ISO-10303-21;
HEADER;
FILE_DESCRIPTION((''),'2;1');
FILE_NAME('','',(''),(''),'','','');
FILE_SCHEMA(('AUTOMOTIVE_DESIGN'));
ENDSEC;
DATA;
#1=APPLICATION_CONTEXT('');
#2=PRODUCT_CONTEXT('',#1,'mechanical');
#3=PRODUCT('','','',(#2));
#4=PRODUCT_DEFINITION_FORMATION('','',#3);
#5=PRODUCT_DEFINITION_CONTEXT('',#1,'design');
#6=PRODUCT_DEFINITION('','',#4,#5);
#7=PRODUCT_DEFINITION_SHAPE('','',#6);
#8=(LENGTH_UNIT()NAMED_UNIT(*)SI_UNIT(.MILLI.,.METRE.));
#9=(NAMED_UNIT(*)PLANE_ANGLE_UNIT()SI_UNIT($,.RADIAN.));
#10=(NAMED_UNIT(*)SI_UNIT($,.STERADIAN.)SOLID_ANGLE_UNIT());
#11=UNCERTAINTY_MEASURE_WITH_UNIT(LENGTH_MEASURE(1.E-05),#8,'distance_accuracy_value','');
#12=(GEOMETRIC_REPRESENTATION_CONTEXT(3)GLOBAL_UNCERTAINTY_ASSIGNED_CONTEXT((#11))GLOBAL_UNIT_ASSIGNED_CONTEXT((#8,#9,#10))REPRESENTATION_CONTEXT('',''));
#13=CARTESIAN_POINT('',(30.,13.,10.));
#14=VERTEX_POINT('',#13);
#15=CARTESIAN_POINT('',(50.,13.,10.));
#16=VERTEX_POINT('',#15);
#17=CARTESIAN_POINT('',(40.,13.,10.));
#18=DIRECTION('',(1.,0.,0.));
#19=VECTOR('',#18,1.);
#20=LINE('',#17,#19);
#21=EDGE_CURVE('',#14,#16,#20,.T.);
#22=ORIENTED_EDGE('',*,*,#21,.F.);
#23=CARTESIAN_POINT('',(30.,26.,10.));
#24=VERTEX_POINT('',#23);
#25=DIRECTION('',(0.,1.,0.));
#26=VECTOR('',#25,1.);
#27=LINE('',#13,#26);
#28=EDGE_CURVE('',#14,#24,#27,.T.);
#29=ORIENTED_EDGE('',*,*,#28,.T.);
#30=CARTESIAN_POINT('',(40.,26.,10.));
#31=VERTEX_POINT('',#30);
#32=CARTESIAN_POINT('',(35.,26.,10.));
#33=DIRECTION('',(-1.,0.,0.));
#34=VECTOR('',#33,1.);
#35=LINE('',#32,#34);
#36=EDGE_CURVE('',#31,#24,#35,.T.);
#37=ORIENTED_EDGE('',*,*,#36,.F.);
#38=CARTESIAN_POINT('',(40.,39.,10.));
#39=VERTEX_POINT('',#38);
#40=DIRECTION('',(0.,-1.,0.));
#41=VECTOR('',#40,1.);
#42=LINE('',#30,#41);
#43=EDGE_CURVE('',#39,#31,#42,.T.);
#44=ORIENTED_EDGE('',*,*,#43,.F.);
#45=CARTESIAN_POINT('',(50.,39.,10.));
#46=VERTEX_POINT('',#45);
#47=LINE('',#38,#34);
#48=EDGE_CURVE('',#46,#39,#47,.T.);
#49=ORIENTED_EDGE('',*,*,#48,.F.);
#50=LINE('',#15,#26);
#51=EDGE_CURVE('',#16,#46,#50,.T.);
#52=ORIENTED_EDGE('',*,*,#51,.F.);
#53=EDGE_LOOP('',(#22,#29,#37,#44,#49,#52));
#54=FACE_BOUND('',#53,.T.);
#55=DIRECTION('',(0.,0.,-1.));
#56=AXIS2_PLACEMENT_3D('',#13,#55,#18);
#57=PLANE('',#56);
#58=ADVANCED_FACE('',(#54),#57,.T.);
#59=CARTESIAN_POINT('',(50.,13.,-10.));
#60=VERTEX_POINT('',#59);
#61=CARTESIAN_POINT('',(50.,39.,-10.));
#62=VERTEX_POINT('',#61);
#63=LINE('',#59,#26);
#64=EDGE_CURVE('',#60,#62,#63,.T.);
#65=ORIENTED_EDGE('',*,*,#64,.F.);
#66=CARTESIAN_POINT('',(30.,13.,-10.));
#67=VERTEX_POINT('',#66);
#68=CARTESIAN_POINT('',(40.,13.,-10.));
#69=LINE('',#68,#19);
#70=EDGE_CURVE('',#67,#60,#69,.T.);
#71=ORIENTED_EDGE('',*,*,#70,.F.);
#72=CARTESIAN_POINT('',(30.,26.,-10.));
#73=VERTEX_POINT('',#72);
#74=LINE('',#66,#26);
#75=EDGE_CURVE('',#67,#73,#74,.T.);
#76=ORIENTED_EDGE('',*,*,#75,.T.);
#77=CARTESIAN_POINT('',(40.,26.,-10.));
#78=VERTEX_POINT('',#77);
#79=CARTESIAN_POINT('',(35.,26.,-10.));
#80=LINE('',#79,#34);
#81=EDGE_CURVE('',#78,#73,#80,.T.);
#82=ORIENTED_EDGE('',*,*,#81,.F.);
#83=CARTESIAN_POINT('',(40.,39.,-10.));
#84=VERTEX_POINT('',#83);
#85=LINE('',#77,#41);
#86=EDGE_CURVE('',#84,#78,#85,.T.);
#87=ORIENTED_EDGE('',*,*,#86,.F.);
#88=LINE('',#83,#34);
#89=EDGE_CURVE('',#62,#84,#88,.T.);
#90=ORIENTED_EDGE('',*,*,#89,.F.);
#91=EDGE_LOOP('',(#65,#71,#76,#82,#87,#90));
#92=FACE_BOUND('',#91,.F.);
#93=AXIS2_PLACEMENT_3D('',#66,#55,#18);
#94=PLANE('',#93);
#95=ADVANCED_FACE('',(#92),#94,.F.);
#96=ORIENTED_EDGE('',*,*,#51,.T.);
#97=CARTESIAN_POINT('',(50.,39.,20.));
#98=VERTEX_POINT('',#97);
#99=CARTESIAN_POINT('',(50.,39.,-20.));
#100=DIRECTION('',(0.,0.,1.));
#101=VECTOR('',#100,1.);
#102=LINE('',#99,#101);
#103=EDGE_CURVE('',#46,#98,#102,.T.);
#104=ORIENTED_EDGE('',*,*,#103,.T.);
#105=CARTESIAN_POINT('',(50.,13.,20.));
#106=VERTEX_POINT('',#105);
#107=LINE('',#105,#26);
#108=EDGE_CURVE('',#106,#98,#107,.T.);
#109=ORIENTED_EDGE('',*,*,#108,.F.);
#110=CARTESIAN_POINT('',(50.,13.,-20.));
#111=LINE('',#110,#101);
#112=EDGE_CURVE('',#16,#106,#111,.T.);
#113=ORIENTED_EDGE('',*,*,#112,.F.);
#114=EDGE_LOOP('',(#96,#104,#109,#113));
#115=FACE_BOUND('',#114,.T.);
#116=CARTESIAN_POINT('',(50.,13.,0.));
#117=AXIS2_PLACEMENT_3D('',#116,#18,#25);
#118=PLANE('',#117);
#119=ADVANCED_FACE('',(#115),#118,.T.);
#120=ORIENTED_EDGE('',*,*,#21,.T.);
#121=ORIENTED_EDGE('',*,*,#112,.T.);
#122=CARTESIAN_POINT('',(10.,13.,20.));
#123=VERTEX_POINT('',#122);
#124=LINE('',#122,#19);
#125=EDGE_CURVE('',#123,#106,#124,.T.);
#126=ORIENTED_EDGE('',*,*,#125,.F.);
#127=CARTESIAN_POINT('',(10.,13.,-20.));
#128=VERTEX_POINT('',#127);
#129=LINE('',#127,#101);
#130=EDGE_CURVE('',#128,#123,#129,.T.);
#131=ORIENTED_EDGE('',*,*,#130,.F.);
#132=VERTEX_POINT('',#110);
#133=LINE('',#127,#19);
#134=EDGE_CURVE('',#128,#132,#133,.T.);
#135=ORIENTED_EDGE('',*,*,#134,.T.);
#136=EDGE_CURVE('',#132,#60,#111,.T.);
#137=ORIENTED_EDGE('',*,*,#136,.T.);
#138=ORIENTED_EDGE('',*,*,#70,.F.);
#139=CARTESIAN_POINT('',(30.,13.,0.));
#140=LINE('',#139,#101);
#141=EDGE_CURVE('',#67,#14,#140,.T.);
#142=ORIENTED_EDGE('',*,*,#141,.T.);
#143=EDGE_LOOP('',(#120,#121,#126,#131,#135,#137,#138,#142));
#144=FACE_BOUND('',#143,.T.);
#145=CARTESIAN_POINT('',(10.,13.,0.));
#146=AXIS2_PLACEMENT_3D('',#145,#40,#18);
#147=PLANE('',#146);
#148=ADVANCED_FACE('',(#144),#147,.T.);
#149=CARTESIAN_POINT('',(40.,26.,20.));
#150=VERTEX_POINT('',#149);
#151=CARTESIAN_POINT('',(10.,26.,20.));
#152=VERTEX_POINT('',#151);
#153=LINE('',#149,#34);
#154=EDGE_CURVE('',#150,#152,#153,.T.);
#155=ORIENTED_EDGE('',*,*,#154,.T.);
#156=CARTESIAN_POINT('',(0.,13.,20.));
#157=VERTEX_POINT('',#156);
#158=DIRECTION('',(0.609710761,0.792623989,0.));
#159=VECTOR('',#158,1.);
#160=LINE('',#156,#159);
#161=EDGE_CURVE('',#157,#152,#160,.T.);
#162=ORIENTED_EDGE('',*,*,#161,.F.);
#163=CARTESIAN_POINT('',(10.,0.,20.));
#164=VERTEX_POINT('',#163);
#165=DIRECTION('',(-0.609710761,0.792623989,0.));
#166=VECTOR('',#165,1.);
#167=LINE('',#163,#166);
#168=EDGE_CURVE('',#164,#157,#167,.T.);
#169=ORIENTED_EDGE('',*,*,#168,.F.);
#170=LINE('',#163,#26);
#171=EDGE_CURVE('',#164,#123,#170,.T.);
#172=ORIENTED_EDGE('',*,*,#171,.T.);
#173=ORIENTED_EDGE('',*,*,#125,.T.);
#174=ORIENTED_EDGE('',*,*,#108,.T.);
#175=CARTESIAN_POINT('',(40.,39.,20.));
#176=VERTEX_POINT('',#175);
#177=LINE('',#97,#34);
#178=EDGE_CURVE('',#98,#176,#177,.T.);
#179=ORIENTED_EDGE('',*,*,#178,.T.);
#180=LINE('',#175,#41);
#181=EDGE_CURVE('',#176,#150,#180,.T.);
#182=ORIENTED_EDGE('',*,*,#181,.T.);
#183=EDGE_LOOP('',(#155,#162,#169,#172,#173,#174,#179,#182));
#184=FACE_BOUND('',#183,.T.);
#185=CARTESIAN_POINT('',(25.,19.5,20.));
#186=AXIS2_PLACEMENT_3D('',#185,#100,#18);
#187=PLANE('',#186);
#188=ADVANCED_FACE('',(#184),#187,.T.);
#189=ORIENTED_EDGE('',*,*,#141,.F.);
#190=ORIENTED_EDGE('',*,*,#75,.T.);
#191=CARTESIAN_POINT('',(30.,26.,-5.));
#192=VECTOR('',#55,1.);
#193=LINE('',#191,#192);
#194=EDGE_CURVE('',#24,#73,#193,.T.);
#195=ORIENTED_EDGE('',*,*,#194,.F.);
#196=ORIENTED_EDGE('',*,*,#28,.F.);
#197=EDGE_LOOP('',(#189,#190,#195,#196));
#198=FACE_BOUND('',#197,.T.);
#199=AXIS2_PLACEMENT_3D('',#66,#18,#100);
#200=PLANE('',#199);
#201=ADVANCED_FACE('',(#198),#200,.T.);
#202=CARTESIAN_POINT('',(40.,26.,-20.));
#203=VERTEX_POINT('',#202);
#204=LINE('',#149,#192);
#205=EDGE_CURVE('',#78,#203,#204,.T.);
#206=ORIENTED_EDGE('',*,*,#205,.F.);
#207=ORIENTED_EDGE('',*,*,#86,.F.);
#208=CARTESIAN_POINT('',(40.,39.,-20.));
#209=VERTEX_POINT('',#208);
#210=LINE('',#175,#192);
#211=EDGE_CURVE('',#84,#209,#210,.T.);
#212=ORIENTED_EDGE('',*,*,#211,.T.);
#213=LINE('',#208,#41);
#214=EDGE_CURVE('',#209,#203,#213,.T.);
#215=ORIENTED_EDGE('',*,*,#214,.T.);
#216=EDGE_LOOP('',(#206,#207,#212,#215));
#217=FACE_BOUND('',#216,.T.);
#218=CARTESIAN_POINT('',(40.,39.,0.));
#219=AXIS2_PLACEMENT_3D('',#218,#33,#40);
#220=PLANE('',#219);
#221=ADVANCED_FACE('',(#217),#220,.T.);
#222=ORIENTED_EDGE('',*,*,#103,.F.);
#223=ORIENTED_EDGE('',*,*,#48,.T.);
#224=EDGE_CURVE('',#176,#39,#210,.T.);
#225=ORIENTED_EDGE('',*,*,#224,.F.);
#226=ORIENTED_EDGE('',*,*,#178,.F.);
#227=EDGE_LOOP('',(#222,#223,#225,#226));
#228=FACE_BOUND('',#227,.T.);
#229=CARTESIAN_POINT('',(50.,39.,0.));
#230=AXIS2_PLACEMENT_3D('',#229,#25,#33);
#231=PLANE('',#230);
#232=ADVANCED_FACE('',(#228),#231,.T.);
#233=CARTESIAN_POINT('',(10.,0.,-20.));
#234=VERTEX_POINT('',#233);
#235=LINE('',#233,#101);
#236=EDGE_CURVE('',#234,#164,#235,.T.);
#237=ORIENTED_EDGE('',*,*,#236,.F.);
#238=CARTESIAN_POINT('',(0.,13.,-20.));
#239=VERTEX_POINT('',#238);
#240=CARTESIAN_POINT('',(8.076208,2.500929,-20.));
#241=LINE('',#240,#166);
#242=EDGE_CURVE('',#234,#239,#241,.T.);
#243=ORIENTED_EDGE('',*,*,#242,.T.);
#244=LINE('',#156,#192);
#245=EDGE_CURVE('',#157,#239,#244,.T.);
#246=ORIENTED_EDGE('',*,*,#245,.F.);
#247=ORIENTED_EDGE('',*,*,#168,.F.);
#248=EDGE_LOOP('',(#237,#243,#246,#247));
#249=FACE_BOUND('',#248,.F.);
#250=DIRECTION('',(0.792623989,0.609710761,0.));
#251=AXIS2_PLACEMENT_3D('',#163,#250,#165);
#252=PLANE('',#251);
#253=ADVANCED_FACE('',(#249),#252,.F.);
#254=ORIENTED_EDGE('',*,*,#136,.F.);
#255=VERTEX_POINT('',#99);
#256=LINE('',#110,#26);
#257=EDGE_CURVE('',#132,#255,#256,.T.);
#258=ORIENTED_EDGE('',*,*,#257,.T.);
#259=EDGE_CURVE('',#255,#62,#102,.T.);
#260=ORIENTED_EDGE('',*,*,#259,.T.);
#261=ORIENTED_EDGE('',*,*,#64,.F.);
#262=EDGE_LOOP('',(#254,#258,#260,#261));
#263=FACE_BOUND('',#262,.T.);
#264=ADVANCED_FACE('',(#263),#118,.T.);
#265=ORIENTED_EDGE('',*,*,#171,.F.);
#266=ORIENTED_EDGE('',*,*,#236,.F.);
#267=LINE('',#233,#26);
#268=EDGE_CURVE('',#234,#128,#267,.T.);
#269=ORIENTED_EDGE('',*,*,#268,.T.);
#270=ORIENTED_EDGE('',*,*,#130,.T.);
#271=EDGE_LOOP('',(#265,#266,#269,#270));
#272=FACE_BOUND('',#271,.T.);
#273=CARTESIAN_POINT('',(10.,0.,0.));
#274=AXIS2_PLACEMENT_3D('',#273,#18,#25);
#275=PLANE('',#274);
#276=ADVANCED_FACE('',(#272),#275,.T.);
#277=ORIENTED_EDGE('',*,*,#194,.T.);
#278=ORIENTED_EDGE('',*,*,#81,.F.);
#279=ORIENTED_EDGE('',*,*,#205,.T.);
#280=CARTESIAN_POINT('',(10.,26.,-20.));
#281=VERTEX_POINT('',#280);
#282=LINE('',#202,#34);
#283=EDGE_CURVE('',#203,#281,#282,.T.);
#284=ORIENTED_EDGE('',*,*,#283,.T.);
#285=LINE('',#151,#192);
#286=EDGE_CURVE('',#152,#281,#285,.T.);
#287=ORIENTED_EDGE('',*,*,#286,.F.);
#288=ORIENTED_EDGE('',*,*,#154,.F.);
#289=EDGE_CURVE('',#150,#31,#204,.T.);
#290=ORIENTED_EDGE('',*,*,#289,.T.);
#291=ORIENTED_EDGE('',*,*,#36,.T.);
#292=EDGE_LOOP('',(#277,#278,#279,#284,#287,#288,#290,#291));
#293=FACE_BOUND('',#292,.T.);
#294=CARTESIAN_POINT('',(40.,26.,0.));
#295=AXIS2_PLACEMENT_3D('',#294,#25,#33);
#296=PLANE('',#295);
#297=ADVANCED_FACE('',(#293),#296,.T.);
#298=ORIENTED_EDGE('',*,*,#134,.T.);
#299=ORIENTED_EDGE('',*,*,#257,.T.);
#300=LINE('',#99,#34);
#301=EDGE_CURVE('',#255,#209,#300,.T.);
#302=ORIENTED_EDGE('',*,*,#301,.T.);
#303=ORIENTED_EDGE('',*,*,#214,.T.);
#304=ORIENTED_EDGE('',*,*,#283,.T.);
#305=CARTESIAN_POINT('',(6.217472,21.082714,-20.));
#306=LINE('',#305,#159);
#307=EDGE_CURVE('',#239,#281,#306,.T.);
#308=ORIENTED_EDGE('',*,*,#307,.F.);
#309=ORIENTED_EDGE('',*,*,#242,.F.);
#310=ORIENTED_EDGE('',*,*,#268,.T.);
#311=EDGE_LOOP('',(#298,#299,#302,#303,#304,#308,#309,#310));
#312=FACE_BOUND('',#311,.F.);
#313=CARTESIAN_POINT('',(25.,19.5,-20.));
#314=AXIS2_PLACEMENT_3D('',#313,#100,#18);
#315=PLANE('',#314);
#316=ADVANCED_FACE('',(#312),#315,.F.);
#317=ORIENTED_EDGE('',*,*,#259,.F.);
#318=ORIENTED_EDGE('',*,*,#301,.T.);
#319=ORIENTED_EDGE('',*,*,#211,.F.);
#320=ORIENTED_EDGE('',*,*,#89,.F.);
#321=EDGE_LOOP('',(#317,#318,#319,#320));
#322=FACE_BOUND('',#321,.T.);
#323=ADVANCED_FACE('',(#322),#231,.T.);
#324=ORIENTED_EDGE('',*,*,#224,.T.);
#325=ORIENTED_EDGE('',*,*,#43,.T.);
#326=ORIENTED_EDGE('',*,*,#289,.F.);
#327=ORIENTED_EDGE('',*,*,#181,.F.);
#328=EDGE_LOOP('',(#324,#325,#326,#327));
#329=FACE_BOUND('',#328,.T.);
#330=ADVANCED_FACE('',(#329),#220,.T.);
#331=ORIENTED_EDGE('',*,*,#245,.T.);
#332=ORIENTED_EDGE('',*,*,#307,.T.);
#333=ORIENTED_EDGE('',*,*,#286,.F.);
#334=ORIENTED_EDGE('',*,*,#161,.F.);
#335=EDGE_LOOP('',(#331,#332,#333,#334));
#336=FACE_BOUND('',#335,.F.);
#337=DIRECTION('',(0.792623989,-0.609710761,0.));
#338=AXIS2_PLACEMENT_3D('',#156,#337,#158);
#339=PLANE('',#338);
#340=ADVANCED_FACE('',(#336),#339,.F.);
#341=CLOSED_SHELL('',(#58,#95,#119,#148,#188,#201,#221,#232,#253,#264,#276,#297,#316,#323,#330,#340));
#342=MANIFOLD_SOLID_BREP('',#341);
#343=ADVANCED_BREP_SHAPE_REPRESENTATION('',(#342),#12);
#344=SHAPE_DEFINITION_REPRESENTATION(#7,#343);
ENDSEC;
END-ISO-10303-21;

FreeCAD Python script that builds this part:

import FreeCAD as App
import Part
import Sketcher

doc = App.newDocument("Part")
params = doc.addObject("Spreadsheet::Sheet", "Params")
for row, (alias, value) in enumerate([
    ("sketch1_width", "10 mm"),
    ("sketch1_width2", "40 mm"),
    ("sketch1_height", "26 mm"),
    ("sketch1_height2", "13 mm"),
    ("pad1_length", "40 mm"),
    ("sketch2_width", "20 mm"),
    ("sketch3_width", "10 mm"),
    ("sketch3_height", "13 mm"),
    ("sketch4_width", "10 mm"),
    ("sketch4_height", "13 mm"),
], start=1):
    params.set(f"A{row}", alias)
    params.set(f"B{row}", "=" + value)
    params.setAlias(f"B{row}", alias)

body = doc.addObject("PartDesign::Body", "Body")

sketch1 = body.newObject("Sketcher::SketchObject", "Sketch")
sketch1.AttachmentSupport = (doc.getObject("XY_Plane"), [""])
sketch1.MapMode = "FlatFace"
sketch1.addGeometry([
    Part.LineSegment(App.Vector(0, 26, 0), App.Vector(0, 0, 0)),
    Part.LineSegment(App.Vector(0, 0, 0), App.Vector(10, 0, 0)),
    Part.LineSegment(App.Vector(10, 0, 0), App.Vector(10, 13, 0)),
    Part.LineSegment(App.Vector(10, 13, 0), App.Vector(50, 13, 0)),
    Part.LineSegment(App.Vector(50, 13, 0), App.Vector(50, 39, 0)),
    Part.LineSegment(App.Vector(50, 39, 0), App.Vector(40, 39, 0)),
    Part.LineSegment(App.Vector(40, 39, 0), App.Vector(40, 26, 0)),
    Part.LineSegment(App.Vector(40, 26, 0), App.Vector(0, 26, 0)),
], False)
sketch1.addConstraint([
    Sketcher.Constraint("Coincident", 0, 2, 1, 1),
    Sketcher.Constraint("Coincident", 1, 2, 2, 1),
    Sketcher.Constraint("Coincident", 2, 2, 3, 1),
    Sketcher.Constraint("Coincident", 3, 2, 4, 1),
    Sketcher.Constraint("Coincident", 4, 2, 5, 1),
    Sketcher.Constraint("Coincident", 5, 2, 6, 1),
    Sketcher.Constraint("Coincident", 6, 2, 7, 1),
    Sketcher.Constraint("Coincident", 7, 2, 0, 1),
    Sketcher.Constraint("Vertical", 0),
    Sketcher.Constraint("Horizontal", 1),
    Sketcher.Constraint("Vertical", 2),
    Sketcher.Constraint("Horizontal", 3),
    Sketcher.Constraint("Vertical", 4),
    Sketcher.Constraint("Horizontal", 5),
    Sketcher.Constraint("Vertical", 6),
    Sketcher.Constraint("Horizontal", 7),
    Sketcher.Constraint("Coincident", 0, 2, -1, 1),
    Sketcher.Constraint("Equal", 1, 5),
    Sketcher.Constraint("Equal", 0, 4),
    Sketcher.Constraint("DistanceX", 1, 1, 1, 2, 10.0),
    Sketcher.Constraint("DistanceX", 3, 1, 3, 2, 40.0),
    Sketcher.Constraint("DistanceY", 0, 2, 0, 1, 26.0),
    Sketcher.Constraint("DistanceY", 2, 1, 2, 2, 13.0),
])
sketch1.setExpression("Constraints[19]", "Params.sketch1_width")
sketch1.setExpression("Constraints[20]", "Params.sketch1_width2")
sketch1.setExpression("Constraints[21]", "Params.sketch1_height")
sketch1.setExpression("Constraints[22]", "Params.sketch1_height2")
pad1 = body.newObject("PartDesign::Pad", "Pad")
pad1.Profile = sketch1
pad1.setExpression("Length", "Params.pad1_length")
pad1.Midplane = True

sketch2 = body.newObject("Sketcher::SketchObject", "Sketch001")
sketch2.AttachmentSupport = (doc.getObject("XZ_Plane"), [""])
sketch2.MapMode = "FlatFace"
sketch2.AttachmentOffset = App.Placement(App.Vector(0, 0, -13), App.Rotation())
sketch2.addGeometry([
    Part.LineSegment(App.Vector(30, 10, 0), App.Vector(30, -10, 0)),
    Part.LineSegment(App.Vector(30, -10, 0), App.Vector(50, -10, 0)),
    Part.LineSegment(App.Vector(50, -10, 0), App.Vector(50, 10, 0)),
    Part.LineSegment(App.Vector(50, 10, 0), App.Vector(30, 10, 0)),
], False)
sketch2.addConstraint([
    Sketcher.Constraint("Coincident", 0, 2, 1, 1),
    Sketcher.Constraint("Coincident", 1, 2, 2, 1),
    Sketcher.Constraint("Coincident", 2, 2, 3, 1),
    Sketcher.Constraint("Coincident", 3, 2, 0, 1),
    Sketcher.Constraint("Vertical", 0),
    Sketcher.Constraint("Horizontal", 1),
    Sketcher.Constraint("Vertical", 2),
    Sketcher.Constraint("Horizontal", 3),
    Sketcher.Constraint("Equal", 3, 0),
    Sketcher.Constraint("DistanceX", 1, 1, 1, 2, 20.0),
    Sketcher.Constraint("DistanceX", -1, 1, 0, 2, 30.0),
    Sketcher.Constraint("DistanceY", 0, 2, -1, 1, 10.0),
])
sketch2.setExpression("Constraints[9]", "Params.sketch2_width")
pocket1 = body.newObject("PartDesign::Pocket", "Pocket")
pocket1.Profile = sketch2
pocket1.Type = "ThroughAll"

sketch3 = body.newObject("Sketcher::SketchObject", "Sketch002")
sketch3.AttachmentSupport = (doc.getObject("XY_Plane"), [""])
sketch3.MapMode = "FlatFace"
sketch3.AttachmentOffset = App.Placement(App.Vector(0, 0, 20), App.Rotation())
sketch3.addGeometry([
    Part.LineSegment(App.Vector(0, 0, 0), App.Vector(10, 0, 0)),
    Part.LineSegment(App.Vector(10, 0, 0), App.Vector(0, 13, 0)),
    Part.LineSegment(App.Vector(0, 13, 0), App.Vector(0, 0, 0)),
], False)
sketch3.addConstraint([
    Sketcher.Constraint("Coincident", 0, 2, 1, 1),
    Sketcher.Constraint("Coincident", 1, 2, 2, 1),
    Sketcher.Constraint("Coincident", 2, 2, 0, 1),
    Sketcher.Constraint("Horizontal", 0),
    Sketcher.Constraint("Vertical", 2),
    Sketcher.Constraint("Coincident", 2, 2, -1, 1),
    Sketcher.Constraint("DistanceX", 0, 1, 0, 2, 10.0),
    Sketcher.Constraint("DistanceY", 2, 2, 2, 1, 13.0),
])
sketch3.setExpression("Constraints[6]", "Params.sketch3_width")
sketch3.setExpression("Constraints[7]", "Params.sketch3_height")
pocket2 = body.newObject("PartDesign::Pocket", "Pocket001")
pocket2.Profile = sketch3
pocket2.Type = "ThroughAll"

sketch4 = body.newObject("Sketcher::SketchObject", "Sketch003")
sketch4.AttachmentSupport = (doc.getObject("XY_Plane"), [""])
sketch4.MapMode = "FlatFace"
sketch4.AttachmentOffset = App.Placement(App.Vector(0, 0, 20), App.Rotation())
sketch4.addGeometry([
    Part.LineSegment(App.Vector(0, 13, 0), App.Vector(10, 26, 0)),
    Part.LineSegment(App.Vector(10, 26, 0), App.Vector(0, 26, 0)),
    Part.LineSegment(App.Vector(0, 26, 0), App.Vector(0, 13, 0)),
], False)
sketch4.addConstraint([
    Sketcher.Constraint("Coincident", 0, 2, 1, 1),
    Sketcher.Constraint("Coincident", 1, 2, 2, 1),
    Sketcher.Constraint("Coincident", 2, 2, 0, 1),
    Sketcher.Constraint("Horizontal", 1),
    Sketcher.Constraint("Vertical", 2),
    Sketcher.Constraint("PointOnObject", 1, 2, -2),
    Sketcher.Constraint("DistanceX", 1, 2, 1, 1, 10.0),
    Sketcher.Constraint("DistanceY", 2, 2, 2, 1, 13.0),
    Sketcher.Constraint("DistanceY", -1, 1, 0, 2, 26.0),
])
sketch4.setExpression("Constraints[6]", "Params.sketch4_width")
sketch4.setExpression("Constraints[7]", "Params.sketch4_height")
pocket3 = body.newObject("PartDesign::Pocket", "Pocket002")
pocket3.Profile = sketch4
pocket3.Type = "ThroughAll"

doc.recompute()
